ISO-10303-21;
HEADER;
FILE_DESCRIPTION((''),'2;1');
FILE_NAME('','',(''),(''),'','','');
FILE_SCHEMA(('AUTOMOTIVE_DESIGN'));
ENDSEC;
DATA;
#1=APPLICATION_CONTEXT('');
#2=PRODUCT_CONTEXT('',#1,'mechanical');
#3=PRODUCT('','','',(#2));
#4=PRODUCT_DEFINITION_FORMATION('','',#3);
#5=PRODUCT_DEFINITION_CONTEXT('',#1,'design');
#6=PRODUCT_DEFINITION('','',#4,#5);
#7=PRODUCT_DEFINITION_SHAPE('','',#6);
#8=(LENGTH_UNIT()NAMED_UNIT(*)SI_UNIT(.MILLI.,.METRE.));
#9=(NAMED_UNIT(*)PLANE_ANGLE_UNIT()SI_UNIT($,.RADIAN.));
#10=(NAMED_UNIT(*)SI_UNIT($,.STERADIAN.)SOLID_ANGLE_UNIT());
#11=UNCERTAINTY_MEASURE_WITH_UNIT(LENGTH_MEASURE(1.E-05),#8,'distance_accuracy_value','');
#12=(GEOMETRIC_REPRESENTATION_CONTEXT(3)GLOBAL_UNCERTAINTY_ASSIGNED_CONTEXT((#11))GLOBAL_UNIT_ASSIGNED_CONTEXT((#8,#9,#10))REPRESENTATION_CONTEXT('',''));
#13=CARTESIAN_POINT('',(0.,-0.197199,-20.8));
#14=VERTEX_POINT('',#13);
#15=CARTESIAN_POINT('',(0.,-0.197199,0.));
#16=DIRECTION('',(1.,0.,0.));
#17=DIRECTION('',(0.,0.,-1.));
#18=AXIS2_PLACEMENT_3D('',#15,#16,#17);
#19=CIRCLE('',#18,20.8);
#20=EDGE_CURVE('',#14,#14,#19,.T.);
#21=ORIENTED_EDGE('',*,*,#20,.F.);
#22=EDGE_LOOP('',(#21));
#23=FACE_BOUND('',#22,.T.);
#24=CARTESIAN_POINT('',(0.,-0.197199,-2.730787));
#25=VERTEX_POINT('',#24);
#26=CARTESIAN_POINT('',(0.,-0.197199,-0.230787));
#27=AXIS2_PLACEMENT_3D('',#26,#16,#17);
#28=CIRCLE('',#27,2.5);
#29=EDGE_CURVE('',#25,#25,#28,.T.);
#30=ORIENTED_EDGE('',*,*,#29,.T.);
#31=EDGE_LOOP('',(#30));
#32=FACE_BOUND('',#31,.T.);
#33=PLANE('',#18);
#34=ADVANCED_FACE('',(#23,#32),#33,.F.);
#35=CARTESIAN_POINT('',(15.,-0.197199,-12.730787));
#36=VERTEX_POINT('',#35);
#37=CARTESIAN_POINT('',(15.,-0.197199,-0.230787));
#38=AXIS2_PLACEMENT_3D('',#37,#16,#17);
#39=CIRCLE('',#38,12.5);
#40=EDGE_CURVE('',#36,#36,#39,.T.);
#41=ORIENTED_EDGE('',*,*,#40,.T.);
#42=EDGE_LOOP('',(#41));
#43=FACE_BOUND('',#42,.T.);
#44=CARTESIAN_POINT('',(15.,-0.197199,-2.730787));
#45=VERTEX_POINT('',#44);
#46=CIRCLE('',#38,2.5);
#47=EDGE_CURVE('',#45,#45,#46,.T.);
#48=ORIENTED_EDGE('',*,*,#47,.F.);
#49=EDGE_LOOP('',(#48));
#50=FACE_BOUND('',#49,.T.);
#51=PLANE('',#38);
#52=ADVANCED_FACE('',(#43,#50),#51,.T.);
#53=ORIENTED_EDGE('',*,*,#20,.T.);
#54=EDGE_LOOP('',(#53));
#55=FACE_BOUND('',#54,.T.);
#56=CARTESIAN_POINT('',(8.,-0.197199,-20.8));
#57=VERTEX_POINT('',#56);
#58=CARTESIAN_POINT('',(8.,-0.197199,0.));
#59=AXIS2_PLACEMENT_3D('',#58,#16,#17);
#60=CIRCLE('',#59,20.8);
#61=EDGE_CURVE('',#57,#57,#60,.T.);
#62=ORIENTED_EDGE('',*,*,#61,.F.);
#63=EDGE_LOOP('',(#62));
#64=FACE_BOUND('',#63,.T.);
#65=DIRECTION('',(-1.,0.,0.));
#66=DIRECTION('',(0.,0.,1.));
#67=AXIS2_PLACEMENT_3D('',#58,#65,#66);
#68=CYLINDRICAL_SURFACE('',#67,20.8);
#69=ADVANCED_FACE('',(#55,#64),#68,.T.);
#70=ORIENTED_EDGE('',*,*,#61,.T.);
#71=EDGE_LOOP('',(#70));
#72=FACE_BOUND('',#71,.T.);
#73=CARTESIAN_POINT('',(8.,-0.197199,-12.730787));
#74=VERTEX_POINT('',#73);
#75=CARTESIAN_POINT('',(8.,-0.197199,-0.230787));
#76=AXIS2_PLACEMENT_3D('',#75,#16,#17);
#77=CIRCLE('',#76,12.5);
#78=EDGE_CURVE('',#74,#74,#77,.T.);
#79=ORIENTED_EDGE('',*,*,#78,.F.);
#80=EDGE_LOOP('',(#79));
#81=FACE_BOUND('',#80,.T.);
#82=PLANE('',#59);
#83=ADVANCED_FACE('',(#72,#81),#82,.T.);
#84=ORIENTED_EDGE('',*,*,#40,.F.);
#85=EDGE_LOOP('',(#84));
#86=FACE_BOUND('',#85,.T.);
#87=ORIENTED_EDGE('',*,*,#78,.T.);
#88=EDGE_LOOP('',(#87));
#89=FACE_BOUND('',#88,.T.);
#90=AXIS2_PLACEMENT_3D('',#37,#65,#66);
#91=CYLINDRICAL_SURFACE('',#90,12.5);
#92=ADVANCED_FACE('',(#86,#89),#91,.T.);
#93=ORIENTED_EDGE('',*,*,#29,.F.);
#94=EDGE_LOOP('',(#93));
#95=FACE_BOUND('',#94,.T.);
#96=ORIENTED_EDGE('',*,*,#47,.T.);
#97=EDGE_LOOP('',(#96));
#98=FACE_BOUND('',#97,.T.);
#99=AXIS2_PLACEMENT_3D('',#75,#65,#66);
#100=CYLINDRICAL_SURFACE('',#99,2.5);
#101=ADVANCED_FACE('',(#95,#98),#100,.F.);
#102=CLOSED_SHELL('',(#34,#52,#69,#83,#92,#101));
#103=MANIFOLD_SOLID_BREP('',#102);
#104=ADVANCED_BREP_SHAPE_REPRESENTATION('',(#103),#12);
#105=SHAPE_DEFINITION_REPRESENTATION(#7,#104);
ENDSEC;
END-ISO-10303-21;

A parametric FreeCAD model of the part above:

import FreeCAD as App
import Part
import Sketcher
Q = App.Units.Quantity

doc = App.newDocument("Part")
body = doc.addObject("PartDesign::Body", "Body")

# Sketch on YZ plane
sketch1 = body.newObject("Sketcher::SketchObject", "Sketch")
sketch1.AttachmentSupport = (doc.getObject("YZ_Plane"), [""])
sketch1.MapMode = "FlatFace"
sketch1.addGeometry(Part.Circle(App.Vector(-0.2, 0, 0), App.Vector(0, 0, 1), 20.8), False)
sketch1.addGeometry(Part.Circle(App.Vector(-0.2, -0.2, 0), App.Vector(0, 0, 1), 2.5), False)
sketch1.addConstraint(Sketcher.Constraint("PointOnObject", 0, 3, -1))
sketch1.addConstraint(Sketcher.Constraint("Vertical", 0, 3, 1, 3))
sketch1.addConstraint(Sketcher.Constraint("Diameter", 1, Q("5 mm")))
sketch1.addConstraint(Sketcher.Constraint("Diameter", 0, Q("41.6 mm")))
sketch1.addConstraint(Sketcher.Constraint("DistanceX", 0, 3, -1, 1, Q("0.197199 mm")))
sketch1.addConstraint(Sketcher.Constraint("DistanceY", 1, 3, -1, 1, Q("0.230787 mm")))
pad1 = body.newObject("PartDesign::Pad", "Pad")
pad1.Profile = sketch1
pad1.Length = 8

# Sketch on YZ plane
sketch2 = body.newObject("Sketcher::SketchObject", "Sketch001")
sketch2.AttachmentSupport = (doc.getObject("YZ_Plane"), [""])
sketch2.MapMode = "FlatFace"
sketch2.AttachmentOffset = App.Placement(App.Vector(0, 0, 8), App.Rotation())
sketch2.addGeometry(Part.Circle(App.Vector(-0.2, -0.2, 0), App.Vector(0, 0, 1), 12.5), False)
sketch2.addGeometry(Part.Circle(App.Vector(-0.2, -0.2, 0), App.Vector(0, 0, 1), 2.5), False)
sketch2.addConstraint(Sketcher.Constraint("Coincident", 1, 3, 0, 3))
sketch2.addConstraint(Sketcher.Constraint("Diameter", 0, Q("25 mm")))
sketch2.addConstraint(Sketcher.Constraint("Diameter", 1, Q("5 mm")))
sketch2.addConstraint(Sketcher.Constraint("DistanceX", 0, 3, -1, 1, Q("0.197199 mm")))
sketch2.addConstraint(Sketcher.Constraint("DistanceY", 0, 3, -1, 1, Q("0.230787 mm")))
pad2 = body.newObject("PartDesign::Pad", "Pad001")
pad2.Profile = sketch2
pad2.Length = 7

doc.recompute()
